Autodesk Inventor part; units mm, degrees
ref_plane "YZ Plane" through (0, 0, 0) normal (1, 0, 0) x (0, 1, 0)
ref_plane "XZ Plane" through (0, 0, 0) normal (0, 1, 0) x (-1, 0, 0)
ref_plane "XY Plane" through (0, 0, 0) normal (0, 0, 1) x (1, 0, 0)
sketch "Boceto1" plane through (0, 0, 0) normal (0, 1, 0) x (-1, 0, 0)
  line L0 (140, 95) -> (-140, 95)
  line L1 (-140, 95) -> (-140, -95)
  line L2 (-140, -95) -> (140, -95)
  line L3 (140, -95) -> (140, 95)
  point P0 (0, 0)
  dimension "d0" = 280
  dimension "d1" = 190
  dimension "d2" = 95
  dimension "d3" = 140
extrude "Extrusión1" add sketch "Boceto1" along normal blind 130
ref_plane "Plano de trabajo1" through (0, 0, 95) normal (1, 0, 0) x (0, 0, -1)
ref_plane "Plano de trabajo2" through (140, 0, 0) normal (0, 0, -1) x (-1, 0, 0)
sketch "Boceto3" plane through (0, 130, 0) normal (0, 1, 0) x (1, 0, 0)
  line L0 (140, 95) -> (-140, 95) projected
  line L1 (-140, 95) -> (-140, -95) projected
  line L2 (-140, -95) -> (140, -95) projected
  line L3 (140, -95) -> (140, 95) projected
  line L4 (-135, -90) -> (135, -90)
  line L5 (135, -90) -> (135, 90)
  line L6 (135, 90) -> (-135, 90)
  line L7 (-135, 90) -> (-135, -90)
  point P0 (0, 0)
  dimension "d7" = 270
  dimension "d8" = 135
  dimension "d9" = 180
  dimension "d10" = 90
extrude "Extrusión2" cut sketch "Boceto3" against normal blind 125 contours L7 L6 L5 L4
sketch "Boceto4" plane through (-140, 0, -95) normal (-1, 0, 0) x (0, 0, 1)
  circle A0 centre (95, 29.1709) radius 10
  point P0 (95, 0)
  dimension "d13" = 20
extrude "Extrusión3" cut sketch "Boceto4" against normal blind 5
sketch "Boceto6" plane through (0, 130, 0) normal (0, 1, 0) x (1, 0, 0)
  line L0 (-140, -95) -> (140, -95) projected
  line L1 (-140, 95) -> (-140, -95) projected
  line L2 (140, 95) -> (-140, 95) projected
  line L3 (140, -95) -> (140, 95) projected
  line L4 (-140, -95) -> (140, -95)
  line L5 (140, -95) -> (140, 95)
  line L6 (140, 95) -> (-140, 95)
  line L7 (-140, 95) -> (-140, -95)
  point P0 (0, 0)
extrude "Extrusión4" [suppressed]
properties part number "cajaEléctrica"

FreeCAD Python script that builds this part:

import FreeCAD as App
import Part
import Sketcher

V = App.Vector
Q = App.Units.Quantity

doc = App.newDocument("Part")
body = doc.addObject("PartDesign::Body", "Body")

# Sketch on XZ plane
sketch1 = doc.addObject("Sketcher::SketchObject", "Sketch")
body.addObject(sketch1)
sketch1.AttachmentSupport = (doc.XZ_Plane, [""])
sketch1.MapMode = "FlatFace"
sketch1.addGeometry([
    Part.LineSegment(V(-140, -95, 0), V(-140, 95, 0)),
    Part.LineSegment(V(-140, 95, 0), V(140, 95, 0)),
    Part.LineSegment(V(140, 95, 0), V(140, -95, 0)),
    Part.LineSegment(V(140, -95, 0), V(-140, -95, 0)),
], False)
sketch1.addConstraint([
    Sketcher.Constraint("Coincident", 0, 2, 1, 1),
    Sketcher.Constraint("Coincident", 1, 2, 2, 1),
    Sketcher.Constraint("Coincident", 2, 2, 3, 1),
    Sketcher.Constraint("Coincident", 3, 2, 0, 1),
    Sketcher.Constraint("Vertical", 0),
    Sketcher.Constraint("Horizontal", 1),
    Sketcher.Constraint("Vertical", 2),
    Sketcher.Constraint("Horizontal", 3),
    Sketcher.Constraint("Symmetric", 0, 2, 2, 2, -1, 1),
    Sketcher.Constraint("DistanceX", 1, 1, 1, 2, Q("280 mm")),
    Sketcher.Constraint("DistanceY", 0, 1, 0, 2, Q("190 mm")),
])
pad1 = doc.addObject("PartDesign::Pad", "Pad")
body.addObject(pad1)
pad1.Profile = sketch1
pad1.Length = 130
pad1.Reversed = True

# Sketch on XZ plane
sketch2 = doc.addObject("Sketcher::SketchObject", "Sketch001")
body.addObject(sketch2)
sketch2.AttachmentSupport = (doc.XZ_Plane, [""])
sketch2.MapMode = "FlatFace"
sketch2.AttachmentOffset = App.Placement(V(0, 0, -130), App.Rotation())
sketch2.addGeometry([
    Part.LineSegment(V(-135, -90, 0), V(-135, 90, 0)),
    Part.LineSegment(V(-135, 90, 0), V(135, 90, 0)),
    Part.LineSegment(V(135, 90, 0), V(135, -90, 0)),
    Part.LineSegment(V(135, -90, 0), V(-135, -90, 0)),
], False)
sketch2.addConstraint([
    Sketcher.Constraint("Coincident", 0, 2, 1, 1),
    Sketcher.Constraint("Coincident", 1, 2, 2, 1),
    Sketcher.Constraint("Coincident", 2, 2, 3, 1),
    Sketcher.Constraint("Coincident", 3, 2, 0, 1),
    Sketcher.Constraint("Vertical", 0),
    Sketcher.Constraint("Horizontal", 1),
    Sketcher.Constraint("Vertical", 2),
    Sketcher.Constraint("Horizontal", 3),
    Sketcher.Constraint("Symmetric", 0, 2, 2, 2, -1, 1),
    Sketcher.Constraint("DistanceX", 1, 1, 1, 2, Q("270 mm")),
    Sketcher.Constraint("DistanceY", 0, 1, 0, 2, Q("180 mm")),
])
pocket1 = doc.addObject("PartDesign::Pocket", "Pocket")
body.addObject(pocket1)
pocket1.Profile = sketch2
pocket1.Length = 125
pocket1.Reversed = True

# Sketch on YZ plane
sketch3 = doc.addObject("Sketcher::SketchObject", "Sketch002")
body.addObject(sketch3)
sketch3.AttachmentSupport = (doc.YZ_Plane, [""])
sketch3.MapMode = "FlatFace"
sketch3.AttachmentOffset = App.Placement(V(0, 0, -140), App.Rotation())
sketch3.addGeometry(Part.Circle(V(29.1709, 0, 0), V(0, 0, 1), 10), False)
sketch3.addConstraint([
    Sketcher.Constraint("PointOnObject", 0, 3, -1),
    Sketcher.Constraint("Diameter", 0, Q("20 mm")),
    Sketcher.Constraint("DistanceX", -1, 1, 0, 3, Q("29.171 mm")),
])
pocket2 = doc.addObject("PartDesign::Pocket", "Pocket001")
body.addObject(pocket2)
pocket2.Profile = sketch3
pocket2.Length = 5
pocket2.Reversed = True

doc.recompute()
